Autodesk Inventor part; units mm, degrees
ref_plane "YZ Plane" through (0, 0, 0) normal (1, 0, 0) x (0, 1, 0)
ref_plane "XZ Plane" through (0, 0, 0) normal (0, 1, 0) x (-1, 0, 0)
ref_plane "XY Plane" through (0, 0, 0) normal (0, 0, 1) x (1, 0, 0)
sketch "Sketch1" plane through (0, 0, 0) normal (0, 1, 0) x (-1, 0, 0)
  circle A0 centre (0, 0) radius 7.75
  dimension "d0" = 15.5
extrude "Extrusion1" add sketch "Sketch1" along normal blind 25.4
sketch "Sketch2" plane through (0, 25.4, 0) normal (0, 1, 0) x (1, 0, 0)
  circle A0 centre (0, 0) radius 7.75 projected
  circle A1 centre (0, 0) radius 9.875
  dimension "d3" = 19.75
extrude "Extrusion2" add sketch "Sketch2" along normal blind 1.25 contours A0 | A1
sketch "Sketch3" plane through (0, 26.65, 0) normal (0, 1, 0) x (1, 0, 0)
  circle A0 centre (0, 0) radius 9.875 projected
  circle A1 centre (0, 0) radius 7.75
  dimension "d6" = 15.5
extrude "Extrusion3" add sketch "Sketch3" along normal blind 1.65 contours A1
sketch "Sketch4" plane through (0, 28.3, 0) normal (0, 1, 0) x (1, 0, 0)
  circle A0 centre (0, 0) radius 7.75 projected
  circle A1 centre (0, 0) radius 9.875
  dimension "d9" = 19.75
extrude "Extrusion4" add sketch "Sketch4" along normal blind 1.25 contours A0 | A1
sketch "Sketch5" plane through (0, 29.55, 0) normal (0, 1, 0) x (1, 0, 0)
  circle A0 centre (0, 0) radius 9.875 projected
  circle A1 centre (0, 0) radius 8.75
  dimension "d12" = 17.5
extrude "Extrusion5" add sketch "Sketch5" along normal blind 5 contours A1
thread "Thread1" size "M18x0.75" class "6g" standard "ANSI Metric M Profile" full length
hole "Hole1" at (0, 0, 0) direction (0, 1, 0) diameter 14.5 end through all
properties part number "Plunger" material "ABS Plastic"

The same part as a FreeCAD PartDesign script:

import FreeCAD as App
import Part
import Sketcher
from FreeCAD import Vector

doc = App.newDocument("Part")
body = doc.addObject("PartDesign::Body", "Body")

sketch1 = body.newObject("Sketcher::SketchObject", "Sketch")
sketch1.AttachmentSupport = (doc.getObject("XZ_Plane"), [""])
sketch1.MapMode = "FlatFace"
sketch1.addGeometry(Part.Circle(Vector(0, 0, 0), Vector(0, 0, 1), 8), False)
sketch1.addConstraint(Sketcher.Constraint("Coincident", 0, 3, -1, 1))
sketch1.addConstraint(Sketcher.Constraint("Diameter", 0, 15.5))
pad1 = body.newObject("PartDesign::Pad", "Pad")
pad1.Profile = sketch1
pad1.Length = 25.4
pad1.Reversed = True

sketch2 = body.newObject("Sketcher::SketchObject", "Sketch001")
sketch2.AttachmentSupport = (doc.getObject("XZ_Plane"), [""])
sketch2.MapMode = "FlatFace"
sketch2.AttachmentOffset = App.Placement(Vector(0, 0, -25.4), App.Rotation())
sketch2.addGeometry(Part.Circle(Vector(0, 0, 0), Vector(0, 0, 1), 10), False)
sketch2.addConstraint(Sketcher.Constraint("Coincident", 0, 3, -1, 1))
sketch2.addConstraint(Sketcher.Constraint("Diameter", 0, 19.75))
pad2 = body.newObject("PartDesign::Pad", "Pad001")
pad2.Profile = sketch2
pad2.Length = 1.25
pad2.Reversed = True

sketch3 = body.newObject("Sketcher::SketchObject", "Sketch002")
sketch3.AttachmentSupport = (doc.getObject("XZ_Plane"), [""])
sketch3.MapMode = "FlatFace"
sketch3.AttachmentOffset = App.Placement(Vector(0, 0, -26.65), App.Rotation())
sketch3.addGeometry(Part.Circle(Vector(0, 0, 0), Vector(0, 0, 1), 8), False)
sketch3.addConstraint(Sketcher.Constraint("Coincident", 0, 3, -1, 1))
sketch3.addConstraint(Sketcher.Constraint("Diameter", 0, 15.5))
pad3 = body.newObject("PartDesign::Pad", "Pad002")
pad3.Profile = sketch3
pad3.Length = 1.65
pad3.Reversed = True

sketch4 = body.newObject("Sketcher::SketchObject", "Sketch003")
sketch4.AttachmentSupport = (doc.getObject("XZ_Plane"), [""])
sketch4.MapMode = "FlatFace"
sketch4.AttachmentOffset = App.Placement(Vector(0, 0, -28.3), App.Rotation())
sketch4.addGeometry(Part.Circle(Vector(0, 0, 0), Vector(0, 0, 1), 10), False)
sketch4.addConstraint(Sketcher.Constraint("Coincident", 0, 3, -1, 1))
sketch4.addConstraint(Sketcher.Constraint("Diameter", 0, 19.75))
pad4 = body.newObject("PartDesign::Pad", "Pad003")
pad4.Profile = sketch4
pad4.Length = 1.25
pad4.Reversed = True

sketch5 = body.newObject("Sketcher::SketchObject", "Sketch004")
sketch5.AttachmentSupport = (doc.getObject("XZ_Plane"), [""])
sketch5.MapMode = "FlatFace"
sketch5.AttachmentOffset = App.Placement(Vector(0, 0, -29.55), App.Rotation())
sketch5.addGeometry(Part.Circle(Vector(0, 0, 0), Vector(0, 0, 1), 9), False)
sketch5.addConstraint(Sketcher.Constraint("Coincident", 0, 3, -1, 1))
sketch5.addConstraint(Sketcher.Constraint("Diameter", 0, 17.5))
pad5 = body.newObject("PartDesign::Pad", "Pad004")
pad5.Profile = sketch5
pad5.Length = 5
pad5.Reversed = True

sketch6 = body.newObject("Sketcher::SketchObject", "Sketch005")
sketch6.AttachmentSupport = (doc.getObject("XZ_Plane"), [""])
sketch6.MapMode = "FlatFace"
sketch6.addGeometry(Part.Circle(Vector(0, 0, 0), Vector(0, 0, 1), 7), False)
sketch6.addConstraint(Sketcher.Constraint("Coincident", 0, 3, -1, 1))
sketch6.addConstraint(Sketcher.Constraint("Diameter", 0, 14.5))
doc.recompute()
hole = body.newObject("PartDesign::Hole", "Hole")
hole.Profile = sketch6
hole.ThreadType = "None"
hole.Diameter = 14.5
hole.DepthType = "ThroughAll"

doc.recompute()
